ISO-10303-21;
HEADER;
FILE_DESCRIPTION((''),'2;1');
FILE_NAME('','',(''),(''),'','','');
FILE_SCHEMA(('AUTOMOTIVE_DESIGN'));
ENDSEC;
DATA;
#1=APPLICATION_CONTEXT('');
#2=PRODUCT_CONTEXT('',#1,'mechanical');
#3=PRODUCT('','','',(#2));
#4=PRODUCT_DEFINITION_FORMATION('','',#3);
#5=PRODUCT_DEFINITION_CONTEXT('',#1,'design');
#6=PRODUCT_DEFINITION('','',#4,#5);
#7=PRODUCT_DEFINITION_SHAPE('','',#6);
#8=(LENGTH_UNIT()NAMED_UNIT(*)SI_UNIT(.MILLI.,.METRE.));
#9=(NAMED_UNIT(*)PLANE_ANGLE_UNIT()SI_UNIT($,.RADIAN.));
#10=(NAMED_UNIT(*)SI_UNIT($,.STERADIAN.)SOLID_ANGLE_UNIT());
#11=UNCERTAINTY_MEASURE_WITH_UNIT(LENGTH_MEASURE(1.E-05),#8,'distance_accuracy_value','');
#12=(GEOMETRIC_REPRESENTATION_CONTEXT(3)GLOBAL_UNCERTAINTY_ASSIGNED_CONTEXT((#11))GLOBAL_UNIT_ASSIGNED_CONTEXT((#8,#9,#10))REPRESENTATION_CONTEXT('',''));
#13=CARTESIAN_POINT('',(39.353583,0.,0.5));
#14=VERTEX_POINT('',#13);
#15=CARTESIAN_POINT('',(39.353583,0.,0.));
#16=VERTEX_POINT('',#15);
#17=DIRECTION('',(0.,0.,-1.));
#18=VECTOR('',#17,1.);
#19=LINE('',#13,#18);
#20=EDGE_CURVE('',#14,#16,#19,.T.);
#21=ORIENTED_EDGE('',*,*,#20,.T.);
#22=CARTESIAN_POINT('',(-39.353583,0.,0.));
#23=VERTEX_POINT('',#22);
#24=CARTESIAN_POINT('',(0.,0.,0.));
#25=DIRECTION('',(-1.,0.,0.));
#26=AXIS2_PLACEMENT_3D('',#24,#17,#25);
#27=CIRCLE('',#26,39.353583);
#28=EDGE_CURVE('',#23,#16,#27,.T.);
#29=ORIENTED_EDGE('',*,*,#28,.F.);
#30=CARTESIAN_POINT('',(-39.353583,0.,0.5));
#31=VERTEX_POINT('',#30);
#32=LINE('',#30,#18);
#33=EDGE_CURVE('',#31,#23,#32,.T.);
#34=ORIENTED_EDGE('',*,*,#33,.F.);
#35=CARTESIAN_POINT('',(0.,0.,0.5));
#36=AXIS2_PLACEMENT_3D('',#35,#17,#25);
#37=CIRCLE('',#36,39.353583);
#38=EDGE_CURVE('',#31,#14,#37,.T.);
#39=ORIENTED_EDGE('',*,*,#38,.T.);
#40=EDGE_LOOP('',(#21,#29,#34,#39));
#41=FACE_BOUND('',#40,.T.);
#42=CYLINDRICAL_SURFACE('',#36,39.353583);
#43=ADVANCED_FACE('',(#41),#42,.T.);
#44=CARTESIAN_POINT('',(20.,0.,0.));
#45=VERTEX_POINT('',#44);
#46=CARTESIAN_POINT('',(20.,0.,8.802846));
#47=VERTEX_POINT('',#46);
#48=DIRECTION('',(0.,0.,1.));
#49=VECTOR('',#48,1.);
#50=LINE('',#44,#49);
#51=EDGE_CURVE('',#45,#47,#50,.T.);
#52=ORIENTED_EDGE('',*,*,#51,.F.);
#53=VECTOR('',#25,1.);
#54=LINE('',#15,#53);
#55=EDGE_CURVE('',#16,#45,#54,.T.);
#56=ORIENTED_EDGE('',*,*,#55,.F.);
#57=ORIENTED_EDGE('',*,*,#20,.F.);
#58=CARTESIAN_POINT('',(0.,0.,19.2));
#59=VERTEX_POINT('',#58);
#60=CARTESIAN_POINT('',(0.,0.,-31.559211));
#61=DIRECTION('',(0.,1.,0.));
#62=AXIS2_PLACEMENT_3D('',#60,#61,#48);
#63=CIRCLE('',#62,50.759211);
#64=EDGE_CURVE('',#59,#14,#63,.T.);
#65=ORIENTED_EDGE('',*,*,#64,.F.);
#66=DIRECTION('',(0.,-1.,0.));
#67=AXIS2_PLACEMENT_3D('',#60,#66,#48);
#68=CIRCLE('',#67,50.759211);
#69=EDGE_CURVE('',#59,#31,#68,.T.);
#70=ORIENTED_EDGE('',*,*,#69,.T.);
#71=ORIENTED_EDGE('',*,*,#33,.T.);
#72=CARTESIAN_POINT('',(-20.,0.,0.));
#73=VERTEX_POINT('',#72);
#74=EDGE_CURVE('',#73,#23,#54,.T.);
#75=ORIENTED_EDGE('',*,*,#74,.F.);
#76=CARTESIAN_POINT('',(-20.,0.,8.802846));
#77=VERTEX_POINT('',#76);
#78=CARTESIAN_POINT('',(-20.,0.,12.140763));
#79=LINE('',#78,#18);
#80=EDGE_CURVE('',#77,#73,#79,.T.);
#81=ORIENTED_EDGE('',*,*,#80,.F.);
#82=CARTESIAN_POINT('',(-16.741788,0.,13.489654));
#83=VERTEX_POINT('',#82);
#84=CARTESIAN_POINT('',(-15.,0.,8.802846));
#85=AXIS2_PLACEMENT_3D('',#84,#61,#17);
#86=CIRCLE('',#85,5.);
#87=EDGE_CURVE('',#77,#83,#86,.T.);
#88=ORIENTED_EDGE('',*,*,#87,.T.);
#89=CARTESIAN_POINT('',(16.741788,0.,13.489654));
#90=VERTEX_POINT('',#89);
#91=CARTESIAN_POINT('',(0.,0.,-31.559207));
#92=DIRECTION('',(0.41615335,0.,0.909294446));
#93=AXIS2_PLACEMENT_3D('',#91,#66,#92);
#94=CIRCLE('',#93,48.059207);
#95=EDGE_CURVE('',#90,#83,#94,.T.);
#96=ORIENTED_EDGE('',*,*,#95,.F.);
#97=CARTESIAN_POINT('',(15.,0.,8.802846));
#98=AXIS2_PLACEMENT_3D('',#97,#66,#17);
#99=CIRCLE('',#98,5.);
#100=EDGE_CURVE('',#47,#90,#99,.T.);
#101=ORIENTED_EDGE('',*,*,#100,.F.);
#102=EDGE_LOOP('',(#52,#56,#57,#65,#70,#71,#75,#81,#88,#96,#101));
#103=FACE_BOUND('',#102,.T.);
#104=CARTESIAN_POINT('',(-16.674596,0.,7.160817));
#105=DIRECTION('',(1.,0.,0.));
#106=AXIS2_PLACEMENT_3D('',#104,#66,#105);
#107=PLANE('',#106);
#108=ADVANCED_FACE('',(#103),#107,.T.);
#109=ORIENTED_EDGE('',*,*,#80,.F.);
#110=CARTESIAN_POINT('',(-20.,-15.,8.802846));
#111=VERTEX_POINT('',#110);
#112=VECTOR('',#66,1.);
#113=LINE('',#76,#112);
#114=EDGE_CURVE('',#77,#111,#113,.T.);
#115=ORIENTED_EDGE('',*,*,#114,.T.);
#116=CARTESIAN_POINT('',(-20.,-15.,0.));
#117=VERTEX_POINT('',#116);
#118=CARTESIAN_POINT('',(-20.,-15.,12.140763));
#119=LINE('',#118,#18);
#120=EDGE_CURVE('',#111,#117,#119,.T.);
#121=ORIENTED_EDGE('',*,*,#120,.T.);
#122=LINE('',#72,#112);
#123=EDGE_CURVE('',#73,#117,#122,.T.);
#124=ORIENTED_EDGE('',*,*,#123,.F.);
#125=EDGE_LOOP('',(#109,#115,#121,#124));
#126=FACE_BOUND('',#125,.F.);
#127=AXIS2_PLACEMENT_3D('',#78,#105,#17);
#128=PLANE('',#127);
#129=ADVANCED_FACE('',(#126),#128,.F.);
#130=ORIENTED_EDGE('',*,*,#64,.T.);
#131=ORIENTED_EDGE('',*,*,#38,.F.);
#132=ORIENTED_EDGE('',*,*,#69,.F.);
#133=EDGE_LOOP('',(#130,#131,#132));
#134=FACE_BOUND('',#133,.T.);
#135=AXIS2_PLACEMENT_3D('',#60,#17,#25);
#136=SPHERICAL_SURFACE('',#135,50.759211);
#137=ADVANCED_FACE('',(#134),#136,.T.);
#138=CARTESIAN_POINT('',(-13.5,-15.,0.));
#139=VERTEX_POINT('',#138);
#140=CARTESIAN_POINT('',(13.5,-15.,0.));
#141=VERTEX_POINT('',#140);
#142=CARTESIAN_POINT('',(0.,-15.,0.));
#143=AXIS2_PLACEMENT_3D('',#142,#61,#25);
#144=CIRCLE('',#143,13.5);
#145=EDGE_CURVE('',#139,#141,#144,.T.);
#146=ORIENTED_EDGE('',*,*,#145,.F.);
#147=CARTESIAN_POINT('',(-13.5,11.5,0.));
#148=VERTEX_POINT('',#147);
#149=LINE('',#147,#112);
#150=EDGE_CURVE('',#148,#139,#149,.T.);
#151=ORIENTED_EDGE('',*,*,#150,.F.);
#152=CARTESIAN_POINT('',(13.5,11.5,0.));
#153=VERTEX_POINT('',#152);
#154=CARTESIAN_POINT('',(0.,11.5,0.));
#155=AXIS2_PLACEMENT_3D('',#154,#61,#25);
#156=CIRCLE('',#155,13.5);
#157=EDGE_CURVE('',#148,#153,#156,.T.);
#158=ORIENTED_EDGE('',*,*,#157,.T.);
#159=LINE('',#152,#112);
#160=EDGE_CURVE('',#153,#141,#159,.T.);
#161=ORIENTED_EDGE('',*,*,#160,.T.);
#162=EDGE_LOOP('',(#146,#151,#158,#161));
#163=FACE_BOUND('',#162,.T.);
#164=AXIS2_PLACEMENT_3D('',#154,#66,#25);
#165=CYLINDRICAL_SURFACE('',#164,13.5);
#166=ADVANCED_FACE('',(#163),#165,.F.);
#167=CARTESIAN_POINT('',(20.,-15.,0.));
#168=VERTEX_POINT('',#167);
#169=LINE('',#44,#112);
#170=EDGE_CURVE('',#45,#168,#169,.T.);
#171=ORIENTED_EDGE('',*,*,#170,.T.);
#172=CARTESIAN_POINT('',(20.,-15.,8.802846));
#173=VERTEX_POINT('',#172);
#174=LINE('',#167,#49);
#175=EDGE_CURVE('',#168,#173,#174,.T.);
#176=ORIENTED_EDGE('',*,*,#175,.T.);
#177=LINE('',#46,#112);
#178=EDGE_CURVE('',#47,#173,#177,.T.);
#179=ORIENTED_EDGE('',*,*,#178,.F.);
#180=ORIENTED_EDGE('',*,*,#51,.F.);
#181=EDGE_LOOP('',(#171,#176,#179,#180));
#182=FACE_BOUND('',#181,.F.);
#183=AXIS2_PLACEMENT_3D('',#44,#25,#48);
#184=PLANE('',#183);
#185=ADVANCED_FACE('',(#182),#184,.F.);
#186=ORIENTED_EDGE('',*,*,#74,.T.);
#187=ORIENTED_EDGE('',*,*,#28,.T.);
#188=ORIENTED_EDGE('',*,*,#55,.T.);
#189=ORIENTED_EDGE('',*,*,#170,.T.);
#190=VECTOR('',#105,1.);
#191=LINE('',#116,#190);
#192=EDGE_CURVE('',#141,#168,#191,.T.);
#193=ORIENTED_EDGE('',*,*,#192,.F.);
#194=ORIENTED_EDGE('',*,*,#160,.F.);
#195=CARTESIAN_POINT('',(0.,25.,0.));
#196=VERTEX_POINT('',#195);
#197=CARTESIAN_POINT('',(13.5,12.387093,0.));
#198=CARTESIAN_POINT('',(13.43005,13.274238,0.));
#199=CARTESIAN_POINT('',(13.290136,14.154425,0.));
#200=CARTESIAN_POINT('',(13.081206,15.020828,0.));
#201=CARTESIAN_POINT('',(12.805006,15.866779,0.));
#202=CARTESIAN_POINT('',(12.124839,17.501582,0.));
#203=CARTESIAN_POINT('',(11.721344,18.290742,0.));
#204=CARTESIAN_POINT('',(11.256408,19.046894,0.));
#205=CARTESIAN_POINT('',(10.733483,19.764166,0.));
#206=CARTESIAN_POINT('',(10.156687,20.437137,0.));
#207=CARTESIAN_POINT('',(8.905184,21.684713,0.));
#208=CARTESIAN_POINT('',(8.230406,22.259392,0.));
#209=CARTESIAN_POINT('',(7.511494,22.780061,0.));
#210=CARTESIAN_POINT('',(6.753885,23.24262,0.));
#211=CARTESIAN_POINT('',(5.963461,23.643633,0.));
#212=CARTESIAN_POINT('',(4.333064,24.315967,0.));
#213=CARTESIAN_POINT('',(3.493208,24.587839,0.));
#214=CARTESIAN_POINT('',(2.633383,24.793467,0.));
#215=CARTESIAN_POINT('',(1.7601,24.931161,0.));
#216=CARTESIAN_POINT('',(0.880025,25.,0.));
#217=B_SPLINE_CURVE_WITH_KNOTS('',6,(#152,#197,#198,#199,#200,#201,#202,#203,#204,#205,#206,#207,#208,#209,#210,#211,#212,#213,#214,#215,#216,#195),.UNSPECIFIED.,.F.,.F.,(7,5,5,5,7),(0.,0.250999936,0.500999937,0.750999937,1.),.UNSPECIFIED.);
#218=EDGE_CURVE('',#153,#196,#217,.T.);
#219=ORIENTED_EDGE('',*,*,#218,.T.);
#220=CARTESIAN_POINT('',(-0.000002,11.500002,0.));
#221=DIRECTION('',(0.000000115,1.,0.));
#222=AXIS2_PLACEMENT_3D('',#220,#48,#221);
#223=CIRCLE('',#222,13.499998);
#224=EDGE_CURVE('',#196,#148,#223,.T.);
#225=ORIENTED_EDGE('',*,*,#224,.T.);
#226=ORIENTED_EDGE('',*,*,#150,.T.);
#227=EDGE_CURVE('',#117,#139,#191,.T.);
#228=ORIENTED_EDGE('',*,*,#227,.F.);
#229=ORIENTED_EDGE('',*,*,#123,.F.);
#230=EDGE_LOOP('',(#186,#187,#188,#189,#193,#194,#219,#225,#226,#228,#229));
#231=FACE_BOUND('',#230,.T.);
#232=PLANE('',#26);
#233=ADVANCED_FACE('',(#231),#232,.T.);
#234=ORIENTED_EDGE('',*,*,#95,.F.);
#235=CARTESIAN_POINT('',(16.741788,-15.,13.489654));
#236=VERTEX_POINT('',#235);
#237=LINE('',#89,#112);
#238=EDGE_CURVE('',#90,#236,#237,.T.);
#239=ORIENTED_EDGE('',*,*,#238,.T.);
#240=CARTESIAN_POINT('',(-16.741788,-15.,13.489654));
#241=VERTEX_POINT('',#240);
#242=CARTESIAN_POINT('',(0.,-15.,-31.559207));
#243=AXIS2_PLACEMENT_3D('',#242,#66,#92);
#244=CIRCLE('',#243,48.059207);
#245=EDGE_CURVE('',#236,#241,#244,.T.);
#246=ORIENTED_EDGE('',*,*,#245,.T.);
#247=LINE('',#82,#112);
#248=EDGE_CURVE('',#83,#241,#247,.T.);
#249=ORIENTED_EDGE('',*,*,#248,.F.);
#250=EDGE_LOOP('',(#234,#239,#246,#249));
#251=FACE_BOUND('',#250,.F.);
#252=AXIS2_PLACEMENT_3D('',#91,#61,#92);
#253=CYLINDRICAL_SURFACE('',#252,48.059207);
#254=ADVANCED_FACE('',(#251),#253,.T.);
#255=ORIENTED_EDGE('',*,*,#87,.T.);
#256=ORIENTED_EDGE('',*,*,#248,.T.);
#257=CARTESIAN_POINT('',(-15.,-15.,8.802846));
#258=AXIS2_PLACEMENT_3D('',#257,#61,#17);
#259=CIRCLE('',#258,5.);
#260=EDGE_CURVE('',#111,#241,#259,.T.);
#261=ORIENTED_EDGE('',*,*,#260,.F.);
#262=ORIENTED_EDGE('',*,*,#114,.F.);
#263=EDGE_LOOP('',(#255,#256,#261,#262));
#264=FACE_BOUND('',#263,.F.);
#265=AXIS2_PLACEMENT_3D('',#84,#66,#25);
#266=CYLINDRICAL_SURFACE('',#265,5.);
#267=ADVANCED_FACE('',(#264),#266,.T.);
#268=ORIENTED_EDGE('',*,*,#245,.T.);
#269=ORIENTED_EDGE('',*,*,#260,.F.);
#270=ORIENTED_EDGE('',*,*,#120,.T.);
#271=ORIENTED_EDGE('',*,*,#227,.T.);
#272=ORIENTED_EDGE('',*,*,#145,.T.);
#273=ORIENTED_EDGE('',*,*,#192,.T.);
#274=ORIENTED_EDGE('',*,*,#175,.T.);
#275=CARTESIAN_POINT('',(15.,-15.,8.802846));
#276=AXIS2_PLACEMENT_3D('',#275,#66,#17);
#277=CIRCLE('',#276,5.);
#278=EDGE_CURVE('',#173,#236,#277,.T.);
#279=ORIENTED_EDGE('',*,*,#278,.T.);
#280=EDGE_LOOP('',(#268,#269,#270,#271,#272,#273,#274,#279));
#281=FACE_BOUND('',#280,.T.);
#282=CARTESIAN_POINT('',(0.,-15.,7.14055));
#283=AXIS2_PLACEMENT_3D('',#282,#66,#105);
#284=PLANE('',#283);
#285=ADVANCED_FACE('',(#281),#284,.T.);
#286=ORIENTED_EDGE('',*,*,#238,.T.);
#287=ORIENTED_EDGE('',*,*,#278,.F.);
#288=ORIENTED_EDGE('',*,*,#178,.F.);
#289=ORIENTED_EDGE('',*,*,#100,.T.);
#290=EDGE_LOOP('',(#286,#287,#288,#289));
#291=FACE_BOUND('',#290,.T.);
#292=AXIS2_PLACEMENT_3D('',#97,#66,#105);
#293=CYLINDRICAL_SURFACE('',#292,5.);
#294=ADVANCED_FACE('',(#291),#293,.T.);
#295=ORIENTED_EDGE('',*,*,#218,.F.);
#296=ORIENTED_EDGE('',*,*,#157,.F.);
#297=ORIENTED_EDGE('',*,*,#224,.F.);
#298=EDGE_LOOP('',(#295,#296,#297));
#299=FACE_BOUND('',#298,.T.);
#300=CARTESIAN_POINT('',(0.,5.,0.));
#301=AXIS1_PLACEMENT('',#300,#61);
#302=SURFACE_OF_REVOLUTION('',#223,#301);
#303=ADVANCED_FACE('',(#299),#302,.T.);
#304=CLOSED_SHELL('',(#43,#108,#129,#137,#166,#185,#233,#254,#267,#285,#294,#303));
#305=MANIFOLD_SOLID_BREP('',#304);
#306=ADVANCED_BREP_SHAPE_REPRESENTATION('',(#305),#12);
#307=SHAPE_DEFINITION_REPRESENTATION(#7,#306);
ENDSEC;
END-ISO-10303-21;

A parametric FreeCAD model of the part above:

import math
import FreeCAD as App
import Part
import Sketcher

V = App.Vector


def edges_at(feature, points):
    """Names of the edges that pass closest to the given points."""
    edges = feature.Shape.Edges
    near = lambda p: min(range(len(edges)), key=lambda i: edges[i].distToShape(Part.Vertex(*p))[0])
    return sorted({f"Edge{near(p) + 1}" for p in points})

doc = App.newDocument("Part")
body = doc.addObject("PartDesign::Body", "Body")

sketch1 = body.newObject("Sketcher::SketchObject", "Sketch")
sketch1.AttachmentSupport = (doc.getObject("XZ_Plane"), [""])
sketch1.MapMode = "FlatFace"
sketch1.addGeometry(Part.LineSegment(V(-39.4, 0.5, 0), V(-39.4, 0, 0)), False)
sketch1.addGeometry(Part.LineSegment(V(-39.4, 0, 0), V(0, 0, 0)), False)
sketch1.addGeometry(Part.LineSegment(V(0, 0, 0), V(0, 19.2, 0)), False)
sketch1.addGeometry(Part.ArcOfCircle(Part.Circle(V(0, -31.6, 0), V(0, 0, 1), 50.8), math.radians(90), math.radians(141)), False)
sketch1.addConstraint(Sketcher.Constraint("Coincident", 0, 2, 1, 1))
sketch1.addConstraint(Sketcher.Constraint("Coincident", 1, 2, 2, 1))
sketch1.addConstraint(Sketcher.Constraint("Coincident", 2, 2, 3, 1))
sketch1.addConstraint(Sketcher.Constraint("Coincident", 3, 2, 0, 1))
sketch1.addConstraint(Sketcher.Constraint("Vertical", 0))
sketch1.addConstraint(Sketcher.Constraint("Horizontal", 1))
sketch1.addConstraint(Sketcher.Constraint("Vertical", 2))
sketch1.addConstraint(Sketcher.Constraint("Coincident", 1, 2, -1, 1))
sketch1.addConstraint(Sketcher.Constraint("PointOnObject", 3, 3, -2))
sketch1.addConstraint(Sketcher.Constraint("DistanceY", 0, 2, 0, 1, 0.5))
sketch1.addConstraint(Sketcher.Constraint("DistanceY", 2, 1, 2, 2, 19.2))
sketch1.addConstraint(Sketcher.Constraint("Radius", 3, 50.759211))
revolution = body.newObject("PartDesign::Revolution", "Revolution")
revolution.Profile = sketch1
revolution.ReferenceAxis = (sketch1, ["V_Axis"])
revolution.Angle = 180
revolution.Reversed = True

sketch2 = body.newObject("Sketcher::SketchObject", "Sketch001")
sketch2.AttachmentSupport = (doc.getObject("XZ_Plane"), [""])
sketch2.MapMode = "FlatFace"
sketch2.addGeometry(Part.LineSegment(V(20, 0, 0), V(20, 12, 0)), False)
sketch2.addGeometry(Part.ArcOfCircle(Part.Circle(V(0, -32, 0), V(0, 0, 1), 48), math.radians(65), math.radians(115)), False)
sketch2.addGeometry(Part.LineSegment(V(-20, 12, 0), V(-20, 0, 0)), False)
sketch2.addGeometry(Part.LineSegment(V(-20, 0, 0), V(20, 0, 0)), False)
sketch2.addConstraint(Sketcher.Constraint("Coincident", 0, 2, 1, 1))
sketch2.addConstraint(Sketcher.Constraint("Coincident", 1, 2, 2, 1))
sketch2.addConstraint(Sketcher.Constraint("Coincident", 2, 2, 3, 1))
sketch2.addConstraint(Sketcher.Constraint("Coincident", 3, 2, 0, 1))
sketch2.addConstraint(Sketcher.Constraint("Vertical", 0))
sketch2.addConstraint(Sketcher.Constraint("Vertical", 2))
sketch2.addConstraint(Sketcher.Constraint("Horizontal", 3))
sketch2.addConstraint(Sketcher.Constraint("Symmetric", 2, 2, 3, 2, -1, 1))
sketch2.addConstraint(Sketcher.Constraint("PointOnObject", 1, 3, -2))
sketch2.addConstraint(Sketcher.Constraint("DistanceX", 3, 1, 3, 2, 40.0))
sketch2.addConstraint(Sketcher.Constraint("Radius", 1, 48.059207))
sketch2.addConstraint(Sketcher.Constraint("DistanceY", 0, 1, 0, 2, 12.140763))
pad1 = body.newObject("PartDesign::Pad", "Pad")
pad1.Profile = sketch2
pad1.Length = 15

sketch3 = body.newObject("Sketcher::SketchObject", "Sketch002")
sketch3.AttachmentSupport = (doc.getObject("XY_Plane"), [""])
sketch3.MapMode = "FlatFace"
sketch3.addGeometry(Part.LineSegment(V(-14, -15, 0), V(0, -15, 0)), False)
sketch3.addGeometry(Part.LineSegment(V(0, -15, 0), V(0, 25, 0)), False)
sketch3.addGeometry(Part.ArcOfCircle(Part.Circle(V(0, 12, 0), V(0, 0, 1), 13), math.radians(90), math.radians(180)), False)
sketch3.addGeometry(Part.LineSegment(V(-14, 12, 0), V(-14, -15, 0)), False)
sketch3.addConstraint(Sketcher.Constraint("Coincident", 0, 2, 1, 1))
sketch3.addConstraint(Sketcher.Constraint("Coincident", 1, 2, 2, 1))
sketch3.addConstraint(Sketcher.Constraint("Tangent", 2, 2, 3, 1))
sketch3.addConstraint(Sketcher.Constraint("Coincident", 3, 2, 0, 1))
sketch3.addConstraint(Sketcher.Constraint("Horizontal", 0))
sketch3.addConstraint(Sketcher.Constraint("Vertical", 1))
sketch3.addConstraint(Sketcher.Constraint("Vertical", 3))
sketch3.addConstraint(Sketcher.Constraint("PointOnObject", 2, 3, -2))
sketch3.addConstraint(Sketcher.Constraint("PointOnObject", 0, 2, -2))
sketch3.addConstraint(Sketcher.Constraint("Radius", 2, 13.499998))
sketch3.addConstraint(Sketcher.Constraint("DistanceY", 1, 1, 1, 2, 40.0))
sketch3.addConstraint(Sketcher.Constraint("DistanceY", 0, 2, -1, 1, 15.0))
groove = body.newObject("PartDesign::Groove", "Groove")
groove.Profile = sketch3
groove.ReferenceAxis = (sketch3, ["V_Axis"])
groove.Angle = 360
doc.recompute()

fillet = body.newObject("PartDesign::Fillet", "Fillet")
fillet.Base = (groove, edges_at(groove, [(-20, -7.5, 12.141), (20, -7.5, 12.141)]))
fillet.Radius = 5

doc.recompute()
